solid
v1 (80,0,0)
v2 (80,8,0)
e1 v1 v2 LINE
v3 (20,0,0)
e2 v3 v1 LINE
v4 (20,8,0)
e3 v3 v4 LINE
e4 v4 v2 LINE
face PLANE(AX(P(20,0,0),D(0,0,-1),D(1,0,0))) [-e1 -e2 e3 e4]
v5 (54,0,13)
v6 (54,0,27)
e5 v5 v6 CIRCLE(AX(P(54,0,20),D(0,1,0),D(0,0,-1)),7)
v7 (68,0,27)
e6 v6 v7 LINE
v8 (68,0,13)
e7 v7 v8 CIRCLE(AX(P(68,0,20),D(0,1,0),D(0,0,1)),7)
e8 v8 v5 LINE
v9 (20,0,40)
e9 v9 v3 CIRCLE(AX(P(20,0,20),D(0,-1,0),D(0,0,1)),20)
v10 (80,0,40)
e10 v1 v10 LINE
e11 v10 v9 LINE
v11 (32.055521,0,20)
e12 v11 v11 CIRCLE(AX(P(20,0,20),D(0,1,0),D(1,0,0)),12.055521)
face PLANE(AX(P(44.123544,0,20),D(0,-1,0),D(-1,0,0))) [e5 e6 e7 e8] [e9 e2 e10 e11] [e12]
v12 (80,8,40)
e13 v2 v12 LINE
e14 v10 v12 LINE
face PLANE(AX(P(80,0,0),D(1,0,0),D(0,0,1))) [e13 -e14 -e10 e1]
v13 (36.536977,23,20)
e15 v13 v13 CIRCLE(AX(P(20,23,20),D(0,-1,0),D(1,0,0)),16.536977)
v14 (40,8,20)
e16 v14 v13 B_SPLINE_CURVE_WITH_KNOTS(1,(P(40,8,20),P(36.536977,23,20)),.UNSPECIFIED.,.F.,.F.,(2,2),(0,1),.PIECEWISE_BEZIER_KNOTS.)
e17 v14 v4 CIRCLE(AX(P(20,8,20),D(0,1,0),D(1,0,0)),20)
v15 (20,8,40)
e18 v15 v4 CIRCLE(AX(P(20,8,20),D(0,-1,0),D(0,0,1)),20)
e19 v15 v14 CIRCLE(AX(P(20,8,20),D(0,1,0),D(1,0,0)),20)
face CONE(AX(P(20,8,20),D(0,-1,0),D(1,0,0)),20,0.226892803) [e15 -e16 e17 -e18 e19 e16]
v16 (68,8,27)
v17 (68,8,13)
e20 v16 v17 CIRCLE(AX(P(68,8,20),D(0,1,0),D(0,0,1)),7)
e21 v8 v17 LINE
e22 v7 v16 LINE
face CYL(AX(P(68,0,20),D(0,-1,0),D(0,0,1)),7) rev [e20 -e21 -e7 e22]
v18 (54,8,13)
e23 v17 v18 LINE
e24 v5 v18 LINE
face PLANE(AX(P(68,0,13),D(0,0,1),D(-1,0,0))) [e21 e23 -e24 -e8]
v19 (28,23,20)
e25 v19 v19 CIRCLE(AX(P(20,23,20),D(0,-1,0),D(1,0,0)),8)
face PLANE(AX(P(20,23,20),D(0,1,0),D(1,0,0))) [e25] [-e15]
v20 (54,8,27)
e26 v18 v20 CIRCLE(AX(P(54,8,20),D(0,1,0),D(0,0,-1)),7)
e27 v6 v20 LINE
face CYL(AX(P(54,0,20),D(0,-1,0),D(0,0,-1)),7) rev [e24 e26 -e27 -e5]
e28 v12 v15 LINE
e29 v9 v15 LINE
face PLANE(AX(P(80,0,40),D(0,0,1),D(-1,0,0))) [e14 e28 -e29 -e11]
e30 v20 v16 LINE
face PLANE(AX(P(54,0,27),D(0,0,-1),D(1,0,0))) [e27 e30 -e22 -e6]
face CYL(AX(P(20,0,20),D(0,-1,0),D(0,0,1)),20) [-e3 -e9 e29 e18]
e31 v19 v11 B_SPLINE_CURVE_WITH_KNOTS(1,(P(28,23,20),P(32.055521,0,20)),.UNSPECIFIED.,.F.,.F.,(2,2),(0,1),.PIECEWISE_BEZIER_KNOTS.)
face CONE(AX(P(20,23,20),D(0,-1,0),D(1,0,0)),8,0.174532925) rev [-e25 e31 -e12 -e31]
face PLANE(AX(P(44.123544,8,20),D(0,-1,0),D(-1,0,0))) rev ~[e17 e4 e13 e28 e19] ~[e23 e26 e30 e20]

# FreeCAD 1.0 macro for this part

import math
import FreeCAD as App
import Part
import Sketcher

V = App.Vector

doc = App.newDocument("Part")
body = doc.addObject("PartDesign::Body", "Body")

sketch1 = body.newObject("Sketcher::SketchObject", "Sketch")
sketch1.AttachmentSupport = (doc.getObject("XZ_Plane"), [""])
sketch1.MapMode = "FlatFace"
sketch1.addGeometry(Part.LineSegment(V(80, 0, 0), V(20, 0, 0)), False)
sketch1.addGeometry(Part.ArcOfCircle(Part.Circle(V(20, 20, 0), V(0, 0, 1), 20), math.radians(90), math.radians(270)), False)
sketch1.addGeometry(Part.LineSegment(V(20, 40, 0), V(80, 40, 0)), False)
sketch1.addGeometry(Part.LineSegment(V(80, 40, 0), V(80, 0, 0)), False)
sketch1.addGeometry(Part.ArcOfCircle(Part.Circle(V(68, 20, 0), V(0, 0, 1), 7), math.radians(-90), math.radians(90)), False)
sketch1.addGeometry(Part.LineSegment(V(68, 27, 0), V(54, 27, 0)), False)
sketch1.addGeometry(Part.ArcOfCircle(Part.Circle(V(54, 20, 0), V(0, 0, 1), 7), math.radians(90), math.radians(270)), False)
sketch1.addGeometry(Part.LineSegment(V(54, 13, 0), V(68, 13, 0)), False)
sketch1.addConstraint(Sketcher.Constraint("Tangent", 0, 2, 1, 2))
sketch1.addConstraint(Sketcher.Constraint("Tangent", 1, 1, 2, 1))
sketch1.addConstraint(Sketcher.Constraint("Coincident", 2, 2, 3, 1))
sketch1.addConstraint(Sketcher.Constraint("Coincident", 3, 2, 0, 1))
sketch1.addConstraint(Sketcher.Constraint("Tangent", 4, 2, 5, 1))
sketch1.addConstraint(Sketcher.Constraint("Tangent", 5, 2, 6, 1))
sketch1.addConstraint(Sketcher.Constraint("Tangent", 6, 2, 7, 1))
sketch1.addConstraint(Sketcher.Constraint("Tangent", 7, 2, 4, 1))
sketch1.addConstraint(Sketcher.Constraint("Horizontal", 0))
sketch1.addConstraint(Sketcher.Constraint("Horizontal", 2))
sketch1.addConstraint(Sketcher.Constraint("Vertical", 3))
sketch1.addConstraint(Sketcher.Constraint("Horizontal", 5))
sketch1.addConstraint(Sketcher.Constraint("Horizontal", 7))
sketch1.addConstraint(Sketcher.Constraint("PointOnObject", 0, 2, -1))
sketch1.addConstraint(Sketcher.Constraint("Horizontal", 1, 3, 4, 3))
sketch1.addConstraint(Sketcher.Constraint("Radius", 1, 20.0))
sketch1.addConstraint(Sketcher.Constraint("Radius", 4, 7.0))
sketch1.addConstraint(Sketcher.Constraint("DistanceX", 0, 2, 0, 1, 60.0))
sketch1.addConstraint(Sketcher.Constraint("DistanceX", 5, 2, 5, 1, 14.0))
sketch1.addConstraint(Sketcher.Constraint("DistanceX", -1, 1, 1, 3, 20.0))
sketch1.addConstraint(Sketcher.Constraint("DistanceX", -1, 1, 4, 3, 68.0))
pad1 = body.newObject("PartDesign::Pad", "Pad")
pad1.Profile = sketch1
pad1.Length = 8
pad1.Reversed = True

sketch2 = body.newObject("Sketcher::SketchObject", "Sketch001")
sketch2.AttachmentSupport = (doc.getObject("XZ_Plane"), [""])
sketch2.MapMode = "FlatFace"
sketch2.AttachmentOffset = App.Placement(V(0, 0, -8), App.Rotation())
sketch2.addGeometry(Part.Circle(V(20, 20, 0), V(0, 0, 1), 20), False)
sketch2.addConstraint(Sketcher.Constraint("Diameter", 0, 40.0))
sketch2.addConstraint(Sketcher.Constraint("DistanceX", -1, 1, 0, 3, 20.0))
sketch2.addConstraint(Sketcher.Constraint("DistanceY", -1, 1, 0, 3, 20.0))
pad2 = body.newObject("PartDesign::Pad", "Pad001")
pad2.Profile = sketch2
pad2.Length = 15
pad2.Reversed = True
pad2.TaperAngle = -13

sketch3 = body.newObject("Sketcher::SketchObject", "Sketch002")
sketch3.AttachmentSupport = (doc.getObject("XZ_Plane"), [""])
sketch3.MapMode = "FlatFace"
sketch3.AttachmentOffset = App.Placement(V(0, 0, -23), App.Rotation())
sketch3.addGeometry(Part.Circle(V(20, 20, 0), V(0, 0, 1), 8), False)
sketch3.addConstraint(Sketcher.Constraint("Diameter", 0, 16.0))
sketch3.addConstraint(Sketcher.Constraint("DistanceX", -1, 1, 0, 3, 20.0))
sketch3.addConstraint(Sketcher.Constraint("DistanceY", -1, 1, 0, 3, 20.0))
pocket1 = body.newObject("PartDesign::Pocket", "Pocket")
pocket1.Profile = sketch3
pocket1.Length = 23
pocket1.Reversed = True
pocket1.TaperAngle = 10

doc.recompute()
